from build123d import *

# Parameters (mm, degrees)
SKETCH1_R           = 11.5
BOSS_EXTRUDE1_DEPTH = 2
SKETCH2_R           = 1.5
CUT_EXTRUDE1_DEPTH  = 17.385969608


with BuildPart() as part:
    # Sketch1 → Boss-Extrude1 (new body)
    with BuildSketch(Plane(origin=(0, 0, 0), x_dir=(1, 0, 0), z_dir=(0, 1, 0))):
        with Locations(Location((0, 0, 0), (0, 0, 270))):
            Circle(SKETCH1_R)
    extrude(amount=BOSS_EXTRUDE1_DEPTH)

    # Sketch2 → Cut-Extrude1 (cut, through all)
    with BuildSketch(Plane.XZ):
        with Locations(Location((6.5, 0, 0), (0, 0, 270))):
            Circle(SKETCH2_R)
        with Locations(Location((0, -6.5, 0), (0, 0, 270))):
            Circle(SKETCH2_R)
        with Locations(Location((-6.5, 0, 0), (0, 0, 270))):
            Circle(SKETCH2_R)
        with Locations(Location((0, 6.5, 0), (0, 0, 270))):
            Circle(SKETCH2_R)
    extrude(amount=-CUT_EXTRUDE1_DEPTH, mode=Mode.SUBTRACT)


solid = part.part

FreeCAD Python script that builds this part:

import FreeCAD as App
import Part
import Sketcher
Q = App.Units.Quantity

doc = App.newDocument("Part")
body = doc.addObject("PartDesign::Body", "Body")

# Sketch on XZ plane
sketch1 = body.newObject("Sketcher::SketchObject", "Sketch")
sketch1.AttachmentSupport = (doc.getObject("XZ_Plane"), [""])
sketch1.MapMode = "FlatFace"
sketch1.addGeometry(Part.Circle(App.Vector(0, 0, 0), App.Vector(0, 0, 1), 12), False)
sketch1.addConstraint([
    Sketcher.Constraint("Coincident", 0, 3, -1, 1),
    Sketcher.Constraint("Diameter", 0, Q("23 mm")),
])
pad1 = body.newObject("PartDesign::Pad", "Pad")
pad1.Profile = sketch1
pad1.Length = 2
pad1.Reversed = True

# Sketch on XZ plane
sketch2 = body.newObject("Sketcher::SketchObject", "Sketch001")
sketch2.AttachmentSupport = (doc.getObject("XZ_Plane"), [""])
sketch2.MapMode = "FlatFace"
sketch2.addGeometry([
    Part.Circle(App.Vector(6.5, 0, 0), App.Vector(0, 0, 1), 1.5),
    Part.Circle(App.Vector(0, -6.5, 0), App.Vector(0, 0, 1), 1.5),
    Part.Circle(App.Vector(-6.5, 0, 0), App.Vector(0, 0, 1), 1.5),
    Part.Circle(App.Vector(0, 6.5, 0), App.Vector(0, 0, 1), 1.5),
], False)
sketch2.addConstraint([
    Sketcher.Constraint("Equal", 0, 1),
    Sketcher.Constraint("Equal", 1, 2),
    Sketcher.Constraint("Equal", 2, 3),
    Sketcher.Constraint("Symmetric", 0, 3, 2, 3, -1, 1),
    Sketcher.Constraint("Symmetric", 1, 3, 3, 3, -1, 1),
    Sketcher.Constraint("PointOnObject", 0, 3, -1),
    Sketcher.Constraint("PointOnObject", 1, 3, -2),
    Sketcher.Constraint("Diameter", 0, Q("3 mm")),
    Sketcher.Constraint("DistanceX", 2, 3, 0, 3, Q("13 mm")),
    Sketcher.Constraint("DistanceY", 1, 3, 3, 3, Q("13 mm")),
])
pocket1 = body.newObject("PartDesign::Pocket", "Pocket")
pocket1.Profile = sketch2
pocket1.Type = "ThroughAll"

doc.recompute()
